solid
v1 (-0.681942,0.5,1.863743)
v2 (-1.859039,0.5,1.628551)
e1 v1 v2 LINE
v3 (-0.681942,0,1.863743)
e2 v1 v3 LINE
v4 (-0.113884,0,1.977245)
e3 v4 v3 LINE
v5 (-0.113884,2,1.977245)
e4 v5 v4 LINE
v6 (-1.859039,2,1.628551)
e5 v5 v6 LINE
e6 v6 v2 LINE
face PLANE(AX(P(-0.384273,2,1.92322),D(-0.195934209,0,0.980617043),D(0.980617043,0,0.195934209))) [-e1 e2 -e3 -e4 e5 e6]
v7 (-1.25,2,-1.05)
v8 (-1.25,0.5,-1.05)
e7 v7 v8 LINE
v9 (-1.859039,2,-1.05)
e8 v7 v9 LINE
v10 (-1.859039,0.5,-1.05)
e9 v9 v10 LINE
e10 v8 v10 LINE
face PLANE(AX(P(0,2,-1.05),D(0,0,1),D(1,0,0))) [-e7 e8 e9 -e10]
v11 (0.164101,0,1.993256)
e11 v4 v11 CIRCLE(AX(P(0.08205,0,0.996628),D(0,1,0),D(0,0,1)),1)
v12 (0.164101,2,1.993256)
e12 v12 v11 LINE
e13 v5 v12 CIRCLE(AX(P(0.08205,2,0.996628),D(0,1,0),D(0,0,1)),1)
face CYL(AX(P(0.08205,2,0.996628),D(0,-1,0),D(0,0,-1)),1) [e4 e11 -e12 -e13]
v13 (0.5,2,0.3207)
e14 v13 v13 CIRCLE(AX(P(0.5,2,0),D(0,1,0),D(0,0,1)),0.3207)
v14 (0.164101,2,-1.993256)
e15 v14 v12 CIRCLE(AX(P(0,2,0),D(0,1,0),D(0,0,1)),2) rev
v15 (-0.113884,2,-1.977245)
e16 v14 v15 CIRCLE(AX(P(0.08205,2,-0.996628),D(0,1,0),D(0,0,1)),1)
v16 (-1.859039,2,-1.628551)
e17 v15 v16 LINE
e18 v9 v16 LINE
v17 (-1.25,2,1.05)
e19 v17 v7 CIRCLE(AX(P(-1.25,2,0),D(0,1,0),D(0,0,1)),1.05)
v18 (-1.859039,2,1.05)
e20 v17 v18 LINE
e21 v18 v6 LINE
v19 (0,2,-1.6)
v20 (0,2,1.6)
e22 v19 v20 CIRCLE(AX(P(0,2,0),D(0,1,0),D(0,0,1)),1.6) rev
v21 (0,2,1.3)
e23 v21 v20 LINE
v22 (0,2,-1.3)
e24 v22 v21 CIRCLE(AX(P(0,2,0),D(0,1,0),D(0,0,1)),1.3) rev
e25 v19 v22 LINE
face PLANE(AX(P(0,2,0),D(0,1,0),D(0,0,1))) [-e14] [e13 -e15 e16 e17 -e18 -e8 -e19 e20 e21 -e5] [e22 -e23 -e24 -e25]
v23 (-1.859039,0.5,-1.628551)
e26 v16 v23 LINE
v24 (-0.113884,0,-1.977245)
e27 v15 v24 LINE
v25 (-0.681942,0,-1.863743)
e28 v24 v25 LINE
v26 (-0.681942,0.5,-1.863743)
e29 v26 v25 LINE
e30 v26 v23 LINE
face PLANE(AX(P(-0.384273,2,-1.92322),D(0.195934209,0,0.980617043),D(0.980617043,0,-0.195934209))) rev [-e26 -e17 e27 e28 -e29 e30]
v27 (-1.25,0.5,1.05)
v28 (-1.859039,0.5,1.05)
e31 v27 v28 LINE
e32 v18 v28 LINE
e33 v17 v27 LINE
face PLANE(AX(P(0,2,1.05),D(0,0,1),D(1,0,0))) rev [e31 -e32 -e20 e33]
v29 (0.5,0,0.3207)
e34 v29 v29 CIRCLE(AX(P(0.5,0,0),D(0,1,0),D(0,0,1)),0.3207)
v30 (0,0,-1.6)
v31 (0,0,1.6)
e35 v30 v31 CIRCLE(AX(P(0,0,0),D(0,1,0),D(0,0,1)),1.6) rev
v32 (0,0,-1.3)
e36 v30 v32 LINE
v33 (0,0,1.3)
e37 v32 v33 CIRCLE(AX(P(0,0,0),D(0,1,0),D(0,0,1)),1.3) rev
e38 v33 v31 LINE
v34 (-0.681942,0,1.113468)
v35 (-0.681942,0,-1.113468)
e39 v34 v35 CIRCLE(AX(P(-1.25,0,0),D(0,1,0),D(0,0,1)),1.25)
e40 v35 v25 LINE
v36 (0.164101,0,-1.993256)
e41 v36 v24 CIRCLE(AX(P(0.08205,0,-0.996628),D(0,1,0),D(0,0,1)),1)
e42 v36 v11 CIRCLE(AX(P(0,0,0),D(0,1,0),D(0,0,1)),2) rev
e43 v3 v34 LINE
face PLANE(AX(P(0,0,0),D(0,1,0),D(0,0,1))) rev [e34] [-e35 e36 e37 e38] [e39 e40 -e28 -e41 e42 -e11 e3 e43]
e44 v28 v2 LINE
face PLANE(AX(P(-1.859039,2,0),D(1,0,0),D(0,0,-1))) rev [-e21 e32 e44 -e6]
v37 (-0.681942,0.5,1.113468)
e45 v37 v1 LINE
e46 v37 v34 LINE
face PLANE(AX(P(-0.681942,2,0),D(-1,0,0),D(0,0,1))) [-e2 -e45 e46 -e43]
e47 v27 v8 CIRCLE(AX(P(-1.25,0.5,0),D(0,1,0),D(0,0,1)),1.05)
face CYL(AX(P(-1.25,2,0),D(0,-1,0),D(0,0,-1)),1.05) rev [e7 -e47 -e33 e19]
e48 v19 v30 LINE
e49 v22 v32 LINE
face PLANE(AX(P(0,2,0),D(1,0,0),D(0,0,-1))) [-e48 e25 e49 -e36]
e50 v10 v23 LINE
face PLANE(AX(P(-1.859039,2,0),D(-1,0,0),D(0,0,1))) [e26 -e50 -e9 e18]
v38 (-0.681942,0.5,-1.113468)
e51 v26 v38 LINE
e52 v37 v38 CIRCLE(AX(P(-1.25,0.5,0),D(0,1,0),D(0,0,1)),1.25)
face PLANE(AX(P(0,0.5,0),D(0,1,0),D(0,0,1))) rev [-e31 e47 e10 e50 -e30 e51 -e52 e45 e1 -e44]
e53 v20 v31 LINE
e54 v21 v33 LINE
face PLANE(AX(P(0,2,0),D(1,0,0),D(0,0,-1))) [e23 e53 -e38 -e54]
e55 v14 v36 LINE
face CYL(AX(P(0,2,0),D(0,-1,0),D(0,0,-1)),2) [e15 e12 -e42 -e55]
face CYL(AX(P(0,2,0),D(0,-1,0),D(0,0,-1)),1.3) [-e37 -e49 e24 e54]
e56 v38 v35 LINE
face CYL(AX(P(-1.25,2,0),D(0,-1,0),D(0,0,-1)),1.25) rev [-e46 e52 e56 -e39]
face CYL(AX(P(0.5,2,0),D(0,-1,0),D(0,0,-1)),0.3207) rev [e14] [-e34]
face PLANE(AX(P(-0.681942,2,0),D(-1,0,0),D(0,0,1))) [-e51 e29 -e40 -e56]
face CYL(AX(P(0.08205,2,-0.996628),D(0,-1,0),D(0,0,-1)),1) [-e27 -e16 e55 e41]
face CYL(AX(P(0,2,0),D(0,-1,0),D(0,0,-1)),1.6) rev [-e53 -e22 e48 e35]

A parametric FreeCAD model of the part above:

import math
import FreeCAD as App
import Part
import Sketcher
from FreeCAD import Vector
Q = App.Units.Quantity

doc = App.newDocument("Part")
body = doc.addObject("PartDesign::Body", "Body")

sketch1 = body.newObject("Sketcher::SketchObject", "Sketch")
sketch1.AttachmentSupport = (doc.getObject("XZ_Plane"), [""])
sketch1.MapMode = "FlatFace"
sketch1.addGeometry(Part.ArcOfCircle(Part.Circle(Vector(0.08, -1, 0), Vector(0, 0, 1), 1), math.radians(-101.3), math.radians(-85.29)), False)
sketch1.addGeometry(Part.LineSegment(Vector(-0.11, -1.98, 0), Vector(-0.68, -1.86, 0)), False)
sketch1.addGeometry(Part.LineSegment(Vector(-0.68, -1.86, 0), Vector(-0.68, -1.11, 0)), False)
sketch1.addGeometry(Part.ArcOfCircle(Part.Circle(Vector(-1.25, 0, 0), Vector(0, 0, 1), 1.25), math.radians(-63), math.radians(0)), False)
sketch1.addGeometry(Part.ArcOfCircle(Part.Circle(Vector(-1.25, 0, 0), Vector(0, 0, 1), 1.25), math.radians(0), math.radians(63)), False)
sketch1.addGeometry(Part.LineSegment(Vector(-0.68, 1.11, 0), Vector(-0.68, 1.86, 0)), False)
sketch1.addGeometry(Part.LineSegment(Vector(-0.68, 1.86, 0), Vector(-0.11, 1.98, 0)), False)
sketch1.addGeometry(Part.ArcOfCircle(Part.Circle(Vector(0.08, 1, 0), Vector(0, 0, 1), 1), math.radians(85.29), math.radians(101.3)), False)
sketch1.addGeometry(Part.ArcOfCircle(Part.Circle(Vector(0, 0, 0), Vector(0, 0, 1), 2), math.radians(-85), math.radians(85)), False)
sketch1.addGeometry(Part.Circle(Vector(0.5, 0, 0), Vector(0, 0, 1), 0.32), False)
sketch1.addGeometry(Part.ArcOfCircle(Part.Circle(Vector(0, 0, 0), Vector(0, 0, 1), 1.3), math.radians(-90), math.radians(90)), False)
sketch1.addGeometry(Part.LineSegment(Vector(0, -1.3, 0), Vector(0, -1.6, 0)), False)
sketch1.addGeometry(Part.ArcOfCircle(Part.Circle(Vector(0, 0, 0), Vector(0, 0, 1), 1.6), math.radians(-90), math.radians(90)), False)
sketch1.addGeometry(Part.LineSegment(Vector(0, 1.6, 0), Vector(0, 1.3, 0)), False)
sketch1.addConstraint(Sketcher.Constraint("Tangent", 0, 1, 1, 1))
sketch1.addConstraint(Sketcher.Constraint("Coincident", 1, 2, 2, 1))
sketch1.addConstraint(Sketcher.Constraint("Coincident", 2, 2, 3, 1))
sketch1.addConstraint(Sketcher.Constraint("Tangent", 3, 2, 4, 1))
sketch1.addConstraint(Sketcher.Constraint("Coincident", 4, 2, 5, 1))
sketch1.addConstraint(Sketcher.Constraint("Coincident", 5, 2, 6, 1))
sketch1.addConstraint(Sketcher.Constraint("Tangent", 6, 2, 7, 2))
sketch1.addConstraint(Sketcher.Constraint("Tangent", 7, 1, 8, 2))
sketch1.addConstraint(Sketcher.Constraint("Tangent", 8, 1, 0, 2))
sketch1.addConstraint(Sketcher.Constraint("Coincident", 10, 1, 11, 1))
sketch1.addConstraint(Sketcher.Constraint("Coincident", 11, 2, 12, 1))
sketch1.addConstraint(Sketcher.Constraint("Coincident", 12, 2, 13, 1))
sketch1.addConstraint(Sketcher.Constraint("Coincident", 13, 2, 10, 2))
sketch1.addConstraint(Sketcher.Constraint("Vertical", 2))
sketch1.addConstraint(Sketcher.Constraint("Vertical", 5))
sketch1.addConstraint(Sketcher.Constraint("Vertical", 11))
sketch1.addConstraint(Sketcher.Constraint("Vertical", 13))
sketch1.addConstraint(Sketcher.Constraint("Coincident", 8, 3, -1, 1))
sketch1.addConstraint(Sketcher.Constraint("Coincident", 10, 3, -1, 1))
sketch1.addConstraint(Sketcher.Constraint("Coincident", 12, 3, -1, 1))
sketch1.addConstraint(Sketcher.Constraint("Coincident", 3, 2, -1, 1))
sketch1.addConstraint(Sketcher.Constraint("Equal", 3, 4))
sketch1.addConstraint(Sketcher.Constraint("Equal", 0, 7))
sketch1.addConstraint(Sketcher.Constraint("Symmetric", 2, 2, 4, 2, -1))
sketch1.addConstraint(Sketcher.Constraint("Symmetric", 0, 1, 6, 2, -1))
sketch1.addConstraint(Sketcher.Constraint("PointOnObject", 9, 3, -1))
sketch1.addConstraint(Sketcher.Constraint("PointOnObject", 10, 1, -2))
sketch1.addConstraint(Sketcher.Constraint("PointOnObject", 12, 2, -2))
sketch1.addConstraint(Sketcher.Constraint("Radius", 0, Q("1 mm")))
sketch1.addConstraint(Sketcher.Constraint("Radius", 8, Q("2 mm")))
sketch1.addConstraint(Sketcher.Constraint("Radius", 10, Q("1.3 mm")))
sketch1.addConstraint(Sketcher.Constraint("Radius", 12, Q("1.6 mm")))
sketch1.addConstraint(Sketcher.Constraint("Radius", 3, Q("1.25 mm")))
sketch1.addConstraint(Sketcher.Constraint("Diameter", 9, Q("0.6414 mm")))
sketch1.addConstraint(Sketcher.Constraint("DistanceX", -1, 1, 9, 3, Q("0.5 mm")))
sketch1.addConstraint(Sketcher.Constraint("DistanceX", -1, 1, 7, 1, Q("0.164101 mm")))
sketch1.addConstraint(Sketcher.Constraint("DistanceY", 2, 1, 2, 2, Q("0.750276 mm")))
sketch1.addConstraint(Sketcher.Constraint("DistanceX", 1, 2, -1, 1, Q("0.681942 mm")))
pad1 = body.newObject("PartDesign::Pad", "Pad")
pad1.Profile = sketch1
pad1.Length = 2
pad1.Reversed = True

sketch2 = body.newObject("Sketcher::SketchObject", "Sketch001")
sketch2.AttachmentSupport = (doc.getObject("XZ_Plane"), [""])
sketch2.MapMode = "FlatFace"
sketch2.AttachmentOffset = App.Placement(Vector(0, 0, -0.5), App.Rotation())
sketch2.addGeometry(Part.LineSegment(Vector(-1.9, -1.1, 0), Vector(-1.2, -1.1, 0)), False)
sketch2.addGeometry(Part.ArcOfCircle(Part.Circle(Vector(-1.2, 0, 0), Vector(0, 0, 1), 1), math.radians(-90), math.radians(-57)), False)
sketch2.addGeometry(Part.ArcOfCircle(Part.Circle(Vector(-1.3, 0, 0), Vector(0, 0, 1), 1.1), math.radians(-57), math.radians(0)), False)
sketch2.addGeometry(Part.ArcOfCircle(Part.Circle(Vector(-1.3, 0, 0), Vector(0, 0, 1), 1.1), math.radians(0), math.radians(57)), False)
sketch2.addGeometry(Part.ArcOfCircle(Part.Circle(Vector(-1.2, 0, 0), Vector(0, 0, 1), 1), math.radians(57), math.radians(90)), False)
sketch2.addGeometry(Part.LineSegment(Vector(-1.2, 1.1, 0), Vector(-1.9, 1.1, 0)), False)
sketch2.addGeometry(Part.LineSegment(Vector(-1.9, 1.1, 0), Vector(-1.9, 1.6, 0)), False)
sketch2.addGeometry(Part.LineSegment(Vector(-1.9, 1.6, 0), Vector(-1.2, 1.8, 0)), False)
sketch2.addGeometry(Part.LineSegment(Vector(-1.2, 1.8, 0), Vector(-0.7, 1.9, 0)), False)
sketch2.addGeometry(Part.LineSegment(Vector(-0.7, 1.9, 0), Vector(-0.7, 1.1, 0)), False)
sketch2.addGeometry(Part.ArcOfCircle(Part.Circle(Vector(-1.2, 0, 0), Vector(0, 0, 1), 1.2), math.radians(0), math.radians(63)), False)
sketch2.addGeometry(Part.ArcOfCircle(Part.Circle(Vector(-1.2, 0, 0), Vector(0, 0, 1), 1.2), math.radians(-63), math.radians(0)), False)
sketch2.addGeometry(Part.LineSegment(Vector(-0.7, -1.1, 0), Vector(-0.7, -1.9, 0)), False)
sketch2.addGeometry(Part.LineSegment(Vector(-0.7, -1.9, 0), Vector(-1.2, -1.8, 0)), False)
sketch2.addGeometry(Part.LineSegment(Vector(-1.2, -1.8, 0), Vector(-1.9, -1.6, 0)), False)
sketch2.addGeometry(Part.LineSegment(Vector(-1.9, -1.6, 0), Vector(-1.9, -1.1, 0)), False)
sketch2.addConstraint(Sketcher.Constraint("Tangent", 0, 2, 1, 1))
sketch2.addConstraint(Sketcher.Constraint("Tangent", 1, 2, 2, 1))
sketch2.addConstraint(Sketcher.Constraint("Tangent", 2, 2, 3, 1))
sketch2.addConstraint(Sketcher.Constraint("Tangent", 3, 2, 4, 1))
sketch2.addConstraint(Sketcher.Constraint("Tangent", 4, 2, 5, 1))
sketch2.addConstraint(Sketcher.Constraint("Coincident", 5, 2, 6, 1))
sketch2.addConstraint(Sketcher.Constraint("Coincident", 6, 2, 7, 1))
sketch2.addConstraint(Sketcher.Constraint("Coincident", 7, 2, 8, 1))
sketch2.addConstraint(Sketcher.Constraint("Coincident", 8, 2, 9, 1))
sketch2.addConstraint(Sketcher.Constraint("Coincident", 9, 2, 10, 2))
sketch2.addConstraint(Sketcher.Constraint("Tangent", 10, 1, 11, 2))
sketch2.addConstraint(Sketcher.Constraint("Coincident", 11, 1, 12, 1))
sketch2.addConstraint(Sketcher.Constraint("Coincident", 12, 2, 13, 1))
sketch2.addConstraint(Sketcher.Constraint("Coincident", 13, 2, 14, 1))
sketch2.addConstraint(Sketcher.Constraint("Coincident", 14, 2, 15, 1))
sketch2.addConstraint(Sketcher.Constraint("Coincident", 15, 2, 0, 1))
sketch2.addConstraint(Sketcher.Constraint("Horizontal", 0))
sketch2.addConstraint(Sketcher.Constraint("Horizontal", 5))
sketch2.addConstraint(Sketcher.Constraint("Vertical", 6))
sketch2.addConstraint(Sketcher.Constraint("Vertical", 9))
sketch2.addConstraint(Sketcher.Constraint("Vertical", 12))
sketch2.addConstraint(Sketcher.Constraint("Vertical", 15))
sketch2.addConstraint(Sketcher.Constraint("Coincident", 10, 1, -1, 1))
sketch2.addConstraint(Sketcher.Constraint("Coincident", 3, 3, 1, 3))
sketch2.addConstraint(Sketcher.Constraint("Coincident", 10, 3, 1, 3))
sketch2.addConstraint(Sketcher.Constraint("Equal", 3, 4))
sketch2.addConstraint(Sketcher.Constraint("Equal", 10, 11))
sketch2.addConstraint(Sketcher.Constraint("Symmetric", 1, 2, 3, 2, -1))
sketch2.addConstraint(Sketcher.Constraint("Symmetric", 8, 2, 12, 2, -1))
sketch2.addConstraint(Sketcher.Constraint("Symmetric", 7, 2, 13, 2, -1))
sketch2.addConstraint(Sketcher.Constraint("Symmetric", 6, 2, 14, 2, -1))
sketch2.addConstraint(Sketcher.Constraint("PointOnObject", 2, 2, -1))
sketch2.addConstraint(Sketcher.Constraint("Parallel", 7, 8))
sketch2.addConstraint(Sketcher.Constraint("Vertical", 4, 2, 7, 2))
sketch2.addConstraint(Sketcher.Constraint("Vertical", 3, 2, 8, 2))
sketch2.addConstraint(Sketcher.Constraint("Radius", 1, Q("1.05 mm")))
sketch2.addConstraint(Sketcher.Constraint("Radius", 10, Q("1.25 mm")))
sketch2.addConstraint(Sketcher.Constraint("DistanceX", 0, 1, 0, 2, Q("0.609039 mm")))
sketch2.addConstraint(Sketcher.Constraint("DistanceY", 6, 1, 6, 2, Q("0.578551 mm")))
sketch2.addConstraint(Sketcher.Constraint("DistanceY", 3, 2, 9, 2, Q("0.230399 mm")))
sketch2.addConstraint(Sketcher.Constraint("DistanceY", 9, 2, 9, 1, Q("0.750276 mm")))
pad2 = body.newObject("PartDesign::Pad", "Pad001")
pad2.Profile = sketch2
pad2.Length = 1.5
pad2.Reversed = True

doc.recompute()
